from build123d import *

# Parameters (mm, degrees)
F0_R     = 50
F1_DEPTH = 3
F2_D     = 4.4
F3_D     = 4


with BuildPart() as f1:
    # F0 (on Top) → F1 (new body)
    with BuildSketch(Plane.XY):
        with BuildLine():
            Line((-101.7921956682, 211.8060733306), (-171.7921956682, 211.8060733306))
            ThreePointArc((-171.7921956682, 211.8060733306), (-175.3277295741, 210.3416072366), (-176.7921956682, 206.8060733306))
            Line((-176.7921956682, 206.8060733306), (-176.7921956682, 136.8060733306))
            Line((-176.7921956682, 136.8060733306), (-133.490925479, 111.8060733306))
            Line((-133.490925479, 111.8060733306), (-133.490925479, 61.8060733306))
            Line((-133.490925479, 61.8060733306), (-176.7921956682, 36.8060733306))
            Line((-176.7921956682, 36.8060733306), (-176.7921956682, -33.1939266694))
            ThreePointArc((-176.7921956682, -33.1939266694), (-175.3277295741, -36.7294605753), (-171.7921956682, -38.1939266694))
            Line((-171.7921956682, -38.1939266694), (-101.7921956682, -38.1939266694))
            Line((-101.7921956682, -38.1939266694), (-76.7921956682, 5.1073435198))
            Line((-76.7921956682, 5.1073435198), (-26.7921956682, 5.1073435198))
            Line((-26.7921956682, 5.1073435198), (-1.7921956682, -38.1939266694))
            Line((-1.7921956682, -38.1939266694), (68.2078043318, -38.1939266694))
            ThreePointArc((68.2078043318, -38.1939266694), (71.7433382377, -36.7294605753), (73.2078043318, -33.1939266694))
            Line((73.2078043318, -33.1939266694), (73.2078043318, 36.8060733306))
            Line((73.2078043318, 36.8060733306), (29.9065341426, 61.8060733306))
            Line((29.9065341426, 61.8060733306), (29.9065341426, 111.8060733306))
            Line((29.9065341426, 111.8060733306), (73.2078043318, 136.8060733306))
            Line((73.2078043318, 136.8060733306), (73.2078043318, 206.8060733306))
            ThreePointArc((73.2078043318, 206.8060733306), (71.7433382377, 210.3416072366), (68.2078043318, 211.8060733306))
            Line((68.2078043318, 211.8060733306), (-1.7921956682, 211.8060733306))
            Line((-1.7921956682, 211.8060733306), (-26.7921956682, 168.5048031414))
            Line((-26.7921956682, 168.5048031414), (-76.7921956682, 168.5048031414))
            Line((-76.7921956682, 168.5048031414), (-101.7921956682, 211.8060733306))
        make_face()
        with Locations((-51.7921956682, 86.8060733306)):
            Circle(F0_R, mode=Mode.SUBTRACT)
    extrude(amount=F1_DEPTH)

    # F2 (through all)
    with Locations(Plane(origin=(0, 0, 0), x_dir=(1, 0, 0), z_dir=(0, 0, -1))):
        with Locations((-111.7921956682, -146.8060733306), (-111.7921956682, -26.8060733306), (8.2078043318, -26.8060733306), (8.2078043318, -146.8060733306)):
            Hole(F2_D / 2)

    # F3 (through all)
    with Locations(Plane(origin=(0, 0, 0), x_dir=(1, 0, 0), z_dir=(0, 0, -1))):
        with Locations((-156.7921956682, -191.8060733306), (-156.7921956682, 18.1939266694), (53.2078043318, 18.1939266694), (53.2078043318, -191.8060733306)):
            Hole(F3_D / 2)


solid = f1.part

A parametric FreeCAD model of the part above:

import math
import FreeCAD as App
import Part
import Sketcher
from FreeCAD import Vector
Q = App.Units.Quantity

doc = App.newDocument("Part")
body = doc.addObject("PartDesign::Body", "Body")

sketch1 = body.newObject("Sketcher::SketchObject", "Sketch")
sketch1.AttachmentSupport = (doc.getObject("XY_Plane"), [""])
sketch1.MapMode = "FlatFace"
sketch1.addGeometry(Part.LineSegment(Vector(-102, 212, 0), Vector(-172, 212, 0)), False)
sketch1.addGeometry(Part.ArcOfCircle(Part.Circle(Vector(-172, 207, 0), Vector(0, 0, 1), 5), math.radians(90), math.radians(180)), False)
sketch1.addGeometry(Part.LineSegment(Vector(-177, 207, 0), Vector(-177, 137, 0)), False)
sketch1.addGeometry(Part.LineSegment(Vector(-177, 137, 0), Vector(-133, 112, 0)), False)
sketch1.addGeometry(Part.LineSegment(Vector(-133, 112, 0), Vector(-133, 62, 0)), False)
sketch1.addGeometry(Part.LineSegment(Vector(-133, 62, 0), Vector(-177, 37, 0)), False)
sketch1.addGeometry(Part.LineSegment(Vector(-177, 37, 0), Vector(-177, -33, 0)), False)
sketch1.addGeometry(Part.ArcOfCircle(Part.Circle(Vector(-172, -33, 0), Vector(0, 0, 1), 5), math.radians(180), math.radians(270)), False)
sketch1.addGeometry(Part.LineSegment(Vector(-172, -38, 0), Vector(-102, -38, 0)), False)
sketch1.addGeometry(Part.LineSegment(Vector(-102, -38, 0), Vector(-77, 5, 0)), False)
sketch1.addGeometry(Part.LineSegment(Vector(-77, 5, 0), Vector(-27, 5, 0)), False)
sketch1.addGeometry(Part.LineSegment(Vector(-27, 5, 0), Vector(-2, -38, 0)), False)
sketch1.addGeometry(Part.LineSegment(Vector(-2, -38, 0), Vector(68, -38, 0)), False)
sketch1.addGeometry(Part.ArcOfCircle(Part.Circle(Vector(68, -33, 0), Vector(0, 0, 1), 5), math.radians(-90), math.radians(0)), False)
sketch1.addGeometry(Part.LineSegment(Vector(73, -33, 0), Vector(73, 37, 0)), False)
sketch1.addGeometry(Part.LineSegment(Vector(73, 37, 0), Vector(30, 62, 0)), False)
sketch1.addGeometry(Part.LineSegment(Vector(30, 62, 0), Vector(30, 112, 0)), False)
sketch1.addGeometry(Part.LineSegment(Vector(30, 112, 0), Vector(73, 137, 0)), False)
sketch1.addGeometry(Part.LineSegment(Vector(73, 137, 0), Vector(73, 207, 0)), False)
sketch1.addGeometry(Part.ArcOfCircle(Part.Circle(Vector(68, 207, 0), Vector(0, 0, 1), 5), math.radians(0), math.radians(90)), False)
sketch1.addGeometry(Part.LineSegment(Vector(68, 212, 0), Vector(-2, 212, 0)), False)
sketch1.addGeometry(Part.LineSegment(Vector(-2, 212, 0), Vector(-27, 169, 0)), False)
sketch1.addGeometry(Part.LineSegment(Vector(-27, 169, 0), Vector(-77, 169, 0)), False)
sketch1.addGeometry(Part.LineSegment(Vector(-77, 169, 0), Vector(-102, 212, 0)), False)
sketch1.addGeometry(Part.Circle(Vector(-52, 87, 0), Vector(0, 0, 1), 50), False)
sketch1.addConstraint(Sketcher.Constraint("Tangent", 0, 2, 1, 1))
sketch1.addConstraint(Sketcher.Constraint("Tangent", 1, 2, 2, 1))
sketch1.addConstraint(Sketcher.Constraint("Coincident", 2, 2, 3, 1))
sketch1.addConstraint(Sketcher.Constraint("Coincident", 3, 2, 4, 1))
sketch1.addConstraint(Sketcher.Constraint("Coincident", 4, 2, 5, 1))
sketch1.addConstraint(Sketcher.Constraint("Coincident", 5, 2, 6, 1))
sketch1.addConstraint(Sketcher.Constraint("Tangent", 6, 2, 7, 1))
sketch1.addConstraint(Sketcher.Constraint("Tangent", 7, 2, 8, 1))
sketch1.addConstraint(Sketcher.Constraint("Coincident", 8, 2, 9, 1))
sketch1.addConstraint(Sketcher.Constraint("Coincident", 9, 2, 10, 1))
sketch1.addConstraint(Sketcher.Constraint("Coincident", 10, 2, 11, 1))
sketch1.addConstraint(Sketcher.Constraint("Coincident", 11, 2, 12, 1))
sketch1.addConstraint(Sketcher.Constraint("Tangent", 12, 2, 13, 1))
sketch1.addConstraint(Sketcher.Constraint("Tangent", 13, 2, 14, 1))
sketch1.addConstraint(Sketcher.Constraint("Coincident", 14, 2, 15, 1))
sketch1.addConstraint(Sketcher.Constraint("Coincident", 15, 2, 16, 1))
sketch1.addConstraint(Sketcher.Constraint("Coincident", 16, 2, 17, 1))
sketch1.addConstraint(Sketcher.Constraint("Coincident", 17, 2, 18, 1))
sketch1.addConstraint(Sketcher.Constraint("Tangent", 18, 2, 19, 1))
sketch1.addConstraint(Sketcher.Constraint("Tangent", 19, 2, 20, 1))
sketch1.addConstraint(Sketcher.Constraint("Coincident", 20, 2, 21, 1))
sketch1.addConstraint(Sketcher.Constraint("Coincident", 21, 2, 22, 1))
sketch1.addConstraint(Sketcher.Constraint("Coincident", 22, 2, 23, 1))
sketch1.addConstraint(Sketcher.Constraint("Coincident", 23, 2, 0, 1))
sketch1.addConstraint(Sketcher.Constraint("Horizontal", 0))
sketch1.addConstraint(Sketcher.Constraint("Vertical", 2))
sketch1.addConstraint(Sketcher.Constraint("Vertical", 4))
sketch1.addConstraint(Sketcher.Constraint("Vertical", 6))
sketch1.addConstraint(Sketcher.Constraint("Horizontal", 8))
sketch1.addConstraint(Sketcher.Constraint("Horizontal", 10))
sketch1.addConstraint(Sketcher.Constraint("Horizontal", 12))
sketch1.addConstraint(Sketcher.Constraint("Vertical", 14))
sketch1.addConstraint(Sketcher.Constraint("Vertical", 16))
sketch1.addConstraint(Sketcher.Constraint("Vertical", 18))
sketch1.addConstraint(Sketcher.Constraint("Horizontal", 20))
sketch1.addConstraint(Sketcher.Constraint("Horizontal", 22))
sketch1.addConstraint(Sketcher.Constraint("Equal", 1, 7))
sketch1.addConstraint(Sketcher.Constraint("Equal", 7, 13))
sketch1.addConstraint(Sketcher.Constraint("Equal", 13, 19))
sketch1.addConstraint(Sketcher.Constraint("Perpendicular", 3, 9))
sketch1.addConstraint(Sketcher.Constraint("Perpendicular", 5, 11))
sketch1.addConstraint(Sketcher.Constraint("Perpendicular", 9, 15))
sketch1.addConstraint(Sketcher.Constraint("Perpendicular", 11, 17))
sketch1.addConstraint(Sketcher.Constraint("Perpendicular", 15, 21))
sketch1.addConstraint(Sketcher.Constraint("Perpendicular", 17, 23))
sketch1.addConstraint(Sketcher.Constraint("Horizontal", 7, 3, 13, 3))
sketch1.addConstraint(Sketcher.Constraint("Horizontal", 1, 3, 19, 3))
sketch1.addConstraint(Sketcher.Constraint("Horizontal", 5, 2, 14, 2))
sketch1.addConstraint(Sketcher.Constraint("Horizontal", 4, 2, 15, 2))
sketch1.addConstraint(Sketcher.Constraint("Horizontal", 3, 2, 16, 2))
sketch1.addConstraint(Sketcher.Constraint("Horizontal", 2, 2, 17, 2))
sketch1.addConstraint(Sketcher.Constraint("Vertical", 1, 3, 7, 3))
sketch1.addConstraint(Sketcher.Constraint("Vertical", 13, 3, 19, 3))
sketch1.addConstraint(Sketcher.Constraint("Vertical", 11, 2, 20, 2))
sketch1.addConstraint(Sketcher.Constraint("Vertical", 10, 2, 21, 2))
sketch1.addConstraint(Sketcher.Constraint("Vertical", 9, 2, 22, 2))
sketch1.addConstraint(Sketcher.Constraint("Equal", 8, 12))
sketch1.addConstraint(Sketcher.Constraint("Equal", 20, 2))
sketch1.addConstraint(Sketcher.Constraint("Equal", 22, 4))
sketch1.addConstraint(Sketcher.Constraint("Equal", 2, 6))
sketch1.addConstraint(Sketcher.Constraint("Equal", 5, 9))
sketch1.addConstraint(Sketcher.Constraint("Diameter", 24, 100.0))
sketch1.addConstraint(Sketcher.Constraint("Radius", 1, 5.0))
sketch1.addConstraint(Sketcher.Constraint("DistanceX", 0, 2, 0, 1, 70.0))
sketch1.addConstraint(Sketcher.Constraint("DistanceX", 10, 1, 10, 2, 50.0))
sketch1.addConstraint(Sketcher.Constraint("Angle", 3, Q("-30 deg")))
sketch1.addConstraint(Sketcher.Constraint("Distance", 3, 50.0))
sketch1.addConstraint(Sketcher.Constraint("DistanceX", 1, 3, 24, 3, 120.0))
sketch1.addConstraint(Sketcher.Constraint("DistanceY", 24, 3, 1, 3, 120.0))
sketch1.addConstraint(Sketcher.Constraint("DistanceX", 1, 3, -1, 1, 171.792196))
sketch1.addConstraint(Sketcher.Constraint("DistanceY", -1, 1, 1, 3, 206.806073))
pad1 = body.newObject("PartDesign::Pad", "Pad")
pad1.Profile = sketch1
pad1.Length = 3

sketch2 = body.newObject("Sketcher::SketchObject", "Sketch001")
sketch2.AttachmentSupport = (doc.getObject("XY_Plane"), [""])
sketch2.MapMode = "FlatFace"
sketch2.addGeometry(Part.Circle(Vector(-111.8, 146.8, 0), Vector(0, 0, 1), 2.2), False)
sketch2.addGeometry(Part.Circle(Vector(-111.8, 26.8, 0), Vector(0, 0, 1), 2.2), False)
sketch2.addGeometry(Part.Circle(Vector(8.2, 26.8, 0), Vector(0, 0, 1), 2.2), False)
sketch2.addGeometry(Part.Circle(Vector(8.2, 146.8, 0), Vector(0, 0, 1), 2.2), False)
sketch2.addConstraint(Sketcher.Constraint("Equal", 0, 1))
sketch2.addConstraint(Sketcher.Constraint("Equal", 1, 2))
sketch2.addConstraint(Sketcher.Constraint("Equal", 2, 3))
sketch2.addConstraint(Sketcher.Constraint("Horizontal", 1, 3, 2, 3))
sketch2.addConstraint(Sketcher.Constraint("Horizontal", 0, 3, 3, 3))
sketch2.addConstraint(Sketcher.Constraint("Vertical", 0, 3, 1, 3))
sketch2.addConstraint(Sketcher.Constraint("Vertical", 2, 3, 3, 3))
sketch2.addConstraint(Sketcher.Constraint("Diameter", 0, 4.4))
sketch2.addConstraint(Sketcher.Constraint("DistanceY", 1, 3, 0, 3, 120.0))
sketch2.addConstraint(Sketcher.Constraint("DistanceX", 1, 3, 2, 3, 120.0))
sketch2.addConstraint(Sketcher.Constraint("DistanceX", 0, 3, -1, 1, 111.792196))
sketch2.addConstraint(Sketcher.Constraint("DistanceY", -1, 1, 0, 3, 146.806073))
doc.recompute()
hole = body.newObject("PartDesign::Hole", "Hole")
hole.Profile = sketch2
hole.ThreadType = "None"
hole.Diameter = 4.4
hole.DepthType = "ThroughAll"
hole.Reversed = True

sketch3 = body.newObject("Sketcher::SketchObject", "Sketch002")
sketch3.AttachmentSupport = (doc.getObject("XY_Plane"), [""])
sketch3.MapMode = "FlatFace"
sketch3.addGeometry(Part.Circle(Vector(-156.8, 191.8, 0), Vector(0, 0, 1), 2), False)
sketch3.addGeometry(Part.Circle(Vector(-156.8, -18.2, 0), Vector(0, 0, 1), 2), False)
sketch3.addGeometry(Part.Circle(Vector(53.2, -18.2, 0), Vector(0, 0, 1), 2), False)
sketch3.addGeometry(Part.Circle(Vector(53.2, 191.8, 0), Vector(0, 0, 1), 2), False)
sketch3.addConstraint(Sketcher.Constraint("Equal", 0, 1))
sketch3.addConstraint(Sketcher.Constraint("Equal", 1, 2))
sketch3.addConstraint(Sketcher.Constraint("Equal", 2, 3))
sketch3.addConstraint(Sketcher.Constraint("Horizontal", 1, 3, 2, 3))
sketch3.addConstraint(Sketcher.Constraint("Horizontal", 0, 3, 3, 3))
sketch3.addConstraint(Sketcher.Constraint("Vertical", 0, 3, 1, 3))
sketch3.addConstraint(Sketcher.Constraint("Vertical", 2, 3, 3, 3))
sketch3.addConstraint(Sketcher.Constraint("Diameter", 0, 4.0))
sketch3.addConstraint(Sketcher.Constraint("DistanceY", 1, 3, 0, 3, 210.0))
sketch3.addConstraint(Sketcher.Constraint("DistanceX", 1, 3, 2, 3, 210.0))
sketch3.addConstraint(Sketcher.Constraint("DistanceX", 0, 3, -1, 1, 156.792196))
sketch3.addConstraint(Sketcher.Constraint("DistanceY", -1, 1, 0, 3, 191.806073))
doc.recompute()
hole2 = body.newObject("PartDesign::Hole", "Hole001")
hole2.Profile = sketch3
hole2.ThreadType = "None"
hole2.Diameter = 4
hole2.DepthType = "ThroughAll"
hole2.Reversed = True

doc.recompute()
